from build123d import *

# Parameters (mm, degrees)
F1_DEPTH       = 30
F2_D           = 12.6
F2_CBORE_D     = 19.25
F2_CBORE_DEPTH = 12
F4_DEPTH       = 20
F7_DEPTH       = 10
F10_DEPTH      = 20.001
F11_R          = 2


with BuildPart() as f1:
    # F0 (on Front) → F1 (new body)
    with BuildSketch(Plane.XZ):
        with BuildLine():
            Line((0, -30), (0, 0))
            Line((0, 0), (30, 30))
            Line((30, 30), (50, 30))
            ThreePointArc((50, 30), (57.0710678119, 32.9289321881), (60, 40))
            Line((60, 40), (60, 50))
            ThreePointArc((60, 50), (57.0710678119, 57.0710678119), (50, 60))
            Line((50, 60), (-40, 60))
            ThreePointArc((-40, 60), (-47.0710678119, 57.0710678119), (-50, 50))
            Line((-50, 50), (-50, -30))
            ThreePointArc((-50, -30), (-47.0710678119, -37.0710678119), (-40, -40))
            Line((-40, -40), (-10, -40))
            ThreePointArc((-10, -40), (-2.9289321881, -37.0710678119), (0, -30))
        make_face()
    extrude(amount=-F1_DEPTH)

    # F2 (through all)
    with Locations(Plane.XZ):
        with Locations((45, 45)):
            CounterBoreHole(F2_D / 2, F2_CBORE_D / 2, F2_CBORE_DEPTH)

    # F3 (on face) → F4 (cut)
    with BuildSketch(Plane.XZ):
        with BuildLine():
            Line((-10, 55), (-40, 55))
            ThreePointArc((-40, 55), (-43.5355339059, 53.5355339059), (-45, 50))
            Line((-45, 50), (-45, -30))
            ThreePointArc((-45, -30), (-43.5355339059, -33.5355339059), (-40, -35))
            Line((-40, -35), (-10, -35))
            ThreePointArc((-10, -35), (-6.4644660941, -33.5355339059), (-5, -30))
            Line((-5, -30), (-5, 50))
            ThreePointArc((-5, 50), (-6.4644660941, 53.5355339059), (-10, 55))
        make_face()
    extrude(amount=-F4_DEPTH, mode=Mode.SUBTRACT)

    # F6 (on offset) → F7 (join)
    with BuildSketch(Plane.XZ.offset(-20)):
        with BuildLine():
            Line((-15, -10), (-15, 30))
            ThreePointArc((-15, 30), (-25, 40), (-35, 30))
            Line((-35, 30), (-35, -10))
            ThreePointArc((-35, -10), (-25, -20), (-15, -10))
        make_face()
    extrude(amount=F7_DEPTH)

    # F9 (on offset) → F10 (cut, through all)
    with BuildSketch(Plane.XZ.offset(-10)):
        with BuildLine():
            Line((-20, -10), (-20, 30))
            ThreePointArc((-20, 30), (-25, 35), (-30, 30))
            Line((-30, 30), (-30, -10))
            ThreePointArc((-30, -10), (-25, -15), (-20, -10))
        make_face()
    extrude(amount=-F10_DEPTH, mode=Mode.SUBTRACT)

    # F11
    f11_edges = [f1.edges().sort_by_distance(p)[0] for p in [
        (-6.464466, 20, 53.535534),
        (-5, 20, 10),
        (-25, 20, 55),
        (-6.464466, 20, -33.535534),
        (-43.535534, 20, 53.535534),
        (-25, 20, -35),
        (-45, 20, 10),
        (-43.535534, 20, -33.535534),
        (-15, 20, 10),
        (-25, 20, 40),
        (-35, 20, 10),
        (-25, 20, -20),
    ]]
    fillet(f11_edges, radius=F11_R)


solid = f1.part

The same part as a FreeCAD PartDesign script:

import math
import FreeCAD as App
import Part
import Sketcher


def edges_at(feature, points):
    """Names of the edges that pass closest to the given points."""
    edges = feature.Shape.Edges
    near = lambda p: min(range(len(edges)), key=lambda i: edges[i].distToShape(Part.Vertex(*p))[0])
    return sorted({f"Edge{near(p) + 1}" for p in points})

doc = App.newDocument("Part")
body = doc.addObject("PartDesign::Body", "Body")

# Sketch on XZ plane
sketch1 = body.newObject("Sketcher::SketchObject", "Sketch")
sketch1.AttachmentSupport = (doc.getObject("XZ_Plane"), [""])
sketch1.MapMode = "FlatFace"
sketch1.addGeometry([
    Part.LineSegment(App.Vector(0, -30, 0), App.Vector(0, 0, 0)),  # 0
    Part.LineSegment(App.Vector(0, 0, 0), App.Vector(30, 30, 0)),  # 1
    Part.LineSegment(App.Vector(30, 30, 0), App.Vector(50, 30, 0)),  # 2
    Part.ArcOfCircle(Part.Circle(App.Vector(50, 40, 0), App.Vector(0, 0, 1), 10), math.radians(-90), math.radians(0)),  # 3
    Part.LineSegment(App.Vector(60, 40, 0), App.Vector(60, 50, 0)),  # 4
    Part.ArcOfCircle(Part.Circle(App.Vector(50, 50, 0), App.Vector(0, 0, 1), 10), math.radians(0), math.radians(90)),  # 5
    Part.LineSegment(App.Vector(50, 60, 0), App.Vector(-40, 60, 0)),  # 6
    Part.ArcOfCircle(Part.Circle(App.Vector(-40, 50, 0), App.Vector(0, 0, 1), 10), math.radians(90), math.radians(180)),  # 7
    Part.LineSegment(App.Vector(-50, 50, 0), App.Vector(-50, -30, 0)),  # 8
    Part.ArcOfCircle(Part.Circle(App.Vector(-40, -30, 0), App.Vector(0, 0, 1), 10), math.radians(180), math.radians(270)),  # 9
    Part.LineSegment(App.Vector(-40, -40, 0), App.Vector(-10, -40, 0)),  # 10
    Part.ArcOfCircle(Part.Circle(App.Vector(-10, -30, 0), App.Vector(0, 0, 1), 10), math.radians(-90), math.radians(0)),  # 11
], False)
sketch1.addConstraint([
    Sketcher.Constraint("Coincident", 0, 2, 1, 1),
    Sketcher.Constraint("Coincident", 1, 2, 2, 1),
    Sketcher.Constraint("Tangent", 2, 2, 3, 1),
    Sketcher.Constraint("Tangent", 3, 2, 4, 1),
    Sketcher.Constraint("Tangent", 4, 2, 5, 1),
    Sketcher.Constraint("Tangent", 5, 2, 6, 1),
    Sketcher.Constraint("Tangent", 6, 2, 7, 1),
    Sketcher.Constraint("Tangent", 7, 2, 8, 1),
    Sketcher.Constraint("Tangent", 8, 2, 9, 1),
    Sketcher.Constraint("Tangent", 9, 2, 10, 1),
    Sketcher.Constraint("Tangent", 10, 2, 11, 1),
    Sketcher.Constraint("Tangent", 11, 2, 0, 1),
    Sketcher.Constraint("Vertical", 0),
    Sketcher.Constraint("Horizontal", 2),
    Sketcher.Constraint("Vertical", 4),
    Sketcher.Constraint("Horizontal", 6),
    Sketcher.Constraint("Vertical", 8),
    Sketcher.Constraint("Horizontal", 10),
    Sketcher.Constraint("Coincident", 0, 2, -1, 1),
    Sketcher.Constraint("Equal", 3, 5),
    Sketcher.Constraint("Equal", 5, 7),
    Sketcher.Constraint("Equal", 7, 9),
    Sketcher.Constraint("Equal", 9, 11),
    Sketcher.Constraint("Symmetric", 2, 2, 8, 2, -1, 1),
    Sketcher.Constraint("Equal", 10, 0),
    Sketcher.Constraint("Radius", 3, 10.0),
    Sketcher.Constraint("DistanceX", 2, 1, 2, 2, 20.0),
    Sketcher.Constraint("DistanceX", 6, 2, 6, 1, 90.0),
    Sketcher.Constraint("DistanceY", 4, 1, 4, 2, 10.0),
])
pad1 = body.newObject("PartDesign::Pad", "Pad")
pad1.Profile = sketch1
pad1.Length = 30
pad1.Reversed = True

# Sketch on XZ plane
sketch2 = body.newObject("Sketcher::SketchObject", "Sketch001")
sketch2.AttachmentSupport = (doc.getObject("XZ_Plane"), [""])
sketch2.MapMode = "FlatFace"
sketch2.addGeometry(Part.Circle(App.Vector(45, 45, 0), App.Vector(0, 0, 1), 6.3), False)
sketch2.addConstraint([
    Sketcher.Constraint("Diameter", 0, 12.6),
    Sketcher.Constraint("DistanceX", -1, 1, 0, 3, 45.0),
    Sketcher.Constraint("DistanceY", -1, 1, 0, 3, 45.0),
])
doc.recompute()
hole = body.newObject("PartDesign::Hole", "Hole")
hole.Profile = sketch2
hole.ThreadType = "None"
hole.Diameter = 12.6
hole.DepthType = "ThroughAll"
hole.HoleCutType = "Counterbore"
hole.HoleCutDiameter = 19.25
hole.HoleCutDepth = 12

# Sketch on XZ plane
sketch3 = body.newObject("Sketcher::SketchObject", "Sketch002")
sketch3.AttachmentSupport = (doc.getObject("XZ_Plane"), [""])
sketch3.MapMode = "FlatFace"
sketch3.addGeometry([
    Part.LineSegment(App.Vector(-10, 55, 0), App.Vector(-40, 55, 0)),  # 0
    Part.ArcOfCircle(Part.Circle(App.Vector(-40, 50, 0), App.Vector(0, 0, 1), 5), math.radians(90), math.radians(180)),  # 1
    Part.LineSegment(App.Vector(-45, 50, 0), App.Vector(-45, -30, 0)),  # 2
    Part.ArcOfCircle(Part.Circle(App.Vector(-40, -30, 0), App.Vector(0, 0, 1), 5), math.radians(180), math.radians(270)),  # 3
    Part.LineSegment(App.Vector(-40, -35, 0), App.Vector(-10, -35, 0)),  # 4
    Part.ArcOfCircle(Part.Circle(App.Vector(-10, -30, 0), App.Vector(0, 0, 1), 5), math.radians(-90), math.radians(0)),  # 5
    Part.LineSegment(App.Vector(-5, -30, 0), App.Vector(-5, 50, 0)),  # 6
    Part.ArcOfCircle(Part.Circle(App.Vector(-10, 50, 0), App.Vector(0, 0, 1), 5), math.radians(0), math.radians(90)),  # 7
], False)
sketch3.addConstraint([
    Sketcher.Constraint("Tangent", 0, 2, 1, 1),
    Sketcher.Constraint("Tangent", 1, 2, 2, 1),
    Sketcher.Constraint("Tangent", 2, 2, 3, 1),
    Sketcher.Constraint("Tangent", 3, 2, 4, 1),
    Sketcher.Constraint("Tangent", 4, 2, 5, 1),
    Sketcher.Constraint("Tangent", 5, 2, 6, 1),
    Sketcher.Constraint("Tangent", 6, 2, 7, 1),
    Sketcher.Constraint("Tangent", 7, 2, 0, 1),
    Sketcher.Constraint("Horizontal", 0),
    Sketcher.Constraint("Vertical", 2),
    Sketcher.Constraint("Horizontal", 4),
    Sketcher.Constraint("Vertical", 6),
    Sketcher.Constraint("Equal", 1, 3),
    Sketcher.Constraint("Equal", 3, 5),
    Sketcher.Constraint("Equal", 5, 7),
    Sketcher.Constraint("Radius", 1, 5.0),
    Sketcher.Constraint("DistanceX", 0, 2, 0, 1, 30.0),
    Sketcher.Constraint("DistanceY", 2, 2, 2, 1, 80.0),
    Sketcher.Constraint("DistanceX", 1, 3, -1, 1, 40.0),
    Sketcher.Constraint("DistanceY", -1, 1, 1, 3, 50.0),
])
pocket1 = body.newObject("PartDesign::Pocket", "Pocket")
pocket1.Profile = sketch3
pocket1.Length = 20

# Sketch on XZ plane
sketch4 = body.newObject("Sketcher::SketchObject", "Sketch003")
sketch4.AttachmentSupport = (doc.getObject("XZ_Plane"), [""])
sketch4.MapMode = "FlatFace"
sketch4.AttachmentOffset = App.Placement(App.Vector(0, 0, -20), App.Rotation())
sketch4.addGeometry([
    Part.LineSegment(App.Vector(-15, -10, 0), App.Vector(-15, 30, 0)),
    Part.ArcOfCircle(Part.Circle(App.Vector(-25, 30, 0), App.Vector(0, 0, 1), 10), math.radians(0), math.radians(180)),
    Part.LineSegment(App.Vector(-35, 30, 0), App.Vector(-35, -10, 0)),
    Part.ArcOfCircle(Part.Circle(App.Vector(-25, -10, 0), App.Vector(0, 0, 1), 10), math.radians(180), math.radians(360)),
], False)
sketch4.addConstraint([
    Sketcher.Constraint("Tangent", 0, 2, 1, 1),
    Sketcher.Constraint("Tangent", 1, 2, 2, 1),
    Sketcher.Constraint("Tangent", 2, 2, 3, 1),
    Sketcher.Constraint("Tangent", 3, 2, 0, 1),
    Sketcher.Constraint("Vertical", 0),
    Sketcher.Constraint("Vertical", 2),
    Sketcher.Constraint("Radius", 1, 10.0),
    Sketcher.Constraint("DistanceY", 0, 1, 0, 2, 40.0),
    Sketcher.Constraint("DistanceX", 1, 3, -1, 1, 25.0),
    Sketcher.Constraint("DistanceY", -1, 1, 1, 3, 30.0),
])
pad2 = body.newObject("PartDesign::Pad", "Pad001")
pad2.Profile = sketch4
pad2.Length = 10

# Sketch on XZ plane
sketch5 = body.newObject("Sketcher::SketchObject", "Sketch004")
sketch5.AttachmentSupport = (doc.getObject("XZ_Plane"), [""])
sketch5.MapMode = "FlatFace"
sketch5.AttachmentOffset = App.Placement(App.Vector(0, 0, -10), App.Rotation())
sketch5.addGeometry([
    Part.LineSegment(App.Vector(-20, -10, 0), App.Vector(-20, 30, 0)),
    Part.ArcOfCircle(Part.Circle(App.Vector(-25, 30, 0), App.Vector(0, 0, 1), 5), math.radians(0), math.radians(180)),
    Part.LineSegment(App.Vector(-30, 30, 0), App.Vector(-30, -10, 0)),
    Part.ArcOfCircle(Part.Circle(App.Vector(-25, -10, 0), App.Vector(0, 0, 1), 5), math.radians(180), math.radians(360)),
], False)
sketch5.addConstraint([
    Sketcher.Constraint("Tangent", 0, 2, 1, 1),
    Sketcher.Constraint("Tangent", 1, 2, 2, 1),
    Sketcher.Constraint("Tangent", 2, 2, 3, 1),
    Sketcher.Constraint("Tangent", 3, 2, 0, 1),
    Sketcher.Constraint("Vertical", 0),
    Sketcher.Constraint("Vertical", 2),
    Sketcher.Constraint("Radius", 1, 5.0),
    Sketcher.Constraint("DistanceY", 0, 1, 0, 2, 40.0),
    Sketcher.Constraint("DistanceX", 1, 3, -1, 1, 25.0),
    Sketcher.Constraint("DistanceY", -1, 1, 1, 3, 30.0),
])
pocket2 = body.newObject("PartDesign::Pocket", "Pocket001")
pocket2.Profile = sketch5
pocket2.Type = "ThroughAll"
doc.recompute()

fillet = body.newObject("PartDesign::Fillet", "Fillet")
fillet.Base = (pocket2, edges_at(pocket2, [
    (-6.464, 20, 53.536),
    (-5, 20, 10),
    (-25, 20, 55),
    (-6.464, 20, -33.536),
    (-43.536, 20, 53.536),
    (-25, 20, -35),
    (-45, 20, 10),
    (-43.536, 20, -33.536),
    (-15, 20, 10),
    (-25, 20, 40),
    (-35, 20, 10),
    (-25, 20, -20),
]))
fillet.Radius = 2

doc.recompute()
